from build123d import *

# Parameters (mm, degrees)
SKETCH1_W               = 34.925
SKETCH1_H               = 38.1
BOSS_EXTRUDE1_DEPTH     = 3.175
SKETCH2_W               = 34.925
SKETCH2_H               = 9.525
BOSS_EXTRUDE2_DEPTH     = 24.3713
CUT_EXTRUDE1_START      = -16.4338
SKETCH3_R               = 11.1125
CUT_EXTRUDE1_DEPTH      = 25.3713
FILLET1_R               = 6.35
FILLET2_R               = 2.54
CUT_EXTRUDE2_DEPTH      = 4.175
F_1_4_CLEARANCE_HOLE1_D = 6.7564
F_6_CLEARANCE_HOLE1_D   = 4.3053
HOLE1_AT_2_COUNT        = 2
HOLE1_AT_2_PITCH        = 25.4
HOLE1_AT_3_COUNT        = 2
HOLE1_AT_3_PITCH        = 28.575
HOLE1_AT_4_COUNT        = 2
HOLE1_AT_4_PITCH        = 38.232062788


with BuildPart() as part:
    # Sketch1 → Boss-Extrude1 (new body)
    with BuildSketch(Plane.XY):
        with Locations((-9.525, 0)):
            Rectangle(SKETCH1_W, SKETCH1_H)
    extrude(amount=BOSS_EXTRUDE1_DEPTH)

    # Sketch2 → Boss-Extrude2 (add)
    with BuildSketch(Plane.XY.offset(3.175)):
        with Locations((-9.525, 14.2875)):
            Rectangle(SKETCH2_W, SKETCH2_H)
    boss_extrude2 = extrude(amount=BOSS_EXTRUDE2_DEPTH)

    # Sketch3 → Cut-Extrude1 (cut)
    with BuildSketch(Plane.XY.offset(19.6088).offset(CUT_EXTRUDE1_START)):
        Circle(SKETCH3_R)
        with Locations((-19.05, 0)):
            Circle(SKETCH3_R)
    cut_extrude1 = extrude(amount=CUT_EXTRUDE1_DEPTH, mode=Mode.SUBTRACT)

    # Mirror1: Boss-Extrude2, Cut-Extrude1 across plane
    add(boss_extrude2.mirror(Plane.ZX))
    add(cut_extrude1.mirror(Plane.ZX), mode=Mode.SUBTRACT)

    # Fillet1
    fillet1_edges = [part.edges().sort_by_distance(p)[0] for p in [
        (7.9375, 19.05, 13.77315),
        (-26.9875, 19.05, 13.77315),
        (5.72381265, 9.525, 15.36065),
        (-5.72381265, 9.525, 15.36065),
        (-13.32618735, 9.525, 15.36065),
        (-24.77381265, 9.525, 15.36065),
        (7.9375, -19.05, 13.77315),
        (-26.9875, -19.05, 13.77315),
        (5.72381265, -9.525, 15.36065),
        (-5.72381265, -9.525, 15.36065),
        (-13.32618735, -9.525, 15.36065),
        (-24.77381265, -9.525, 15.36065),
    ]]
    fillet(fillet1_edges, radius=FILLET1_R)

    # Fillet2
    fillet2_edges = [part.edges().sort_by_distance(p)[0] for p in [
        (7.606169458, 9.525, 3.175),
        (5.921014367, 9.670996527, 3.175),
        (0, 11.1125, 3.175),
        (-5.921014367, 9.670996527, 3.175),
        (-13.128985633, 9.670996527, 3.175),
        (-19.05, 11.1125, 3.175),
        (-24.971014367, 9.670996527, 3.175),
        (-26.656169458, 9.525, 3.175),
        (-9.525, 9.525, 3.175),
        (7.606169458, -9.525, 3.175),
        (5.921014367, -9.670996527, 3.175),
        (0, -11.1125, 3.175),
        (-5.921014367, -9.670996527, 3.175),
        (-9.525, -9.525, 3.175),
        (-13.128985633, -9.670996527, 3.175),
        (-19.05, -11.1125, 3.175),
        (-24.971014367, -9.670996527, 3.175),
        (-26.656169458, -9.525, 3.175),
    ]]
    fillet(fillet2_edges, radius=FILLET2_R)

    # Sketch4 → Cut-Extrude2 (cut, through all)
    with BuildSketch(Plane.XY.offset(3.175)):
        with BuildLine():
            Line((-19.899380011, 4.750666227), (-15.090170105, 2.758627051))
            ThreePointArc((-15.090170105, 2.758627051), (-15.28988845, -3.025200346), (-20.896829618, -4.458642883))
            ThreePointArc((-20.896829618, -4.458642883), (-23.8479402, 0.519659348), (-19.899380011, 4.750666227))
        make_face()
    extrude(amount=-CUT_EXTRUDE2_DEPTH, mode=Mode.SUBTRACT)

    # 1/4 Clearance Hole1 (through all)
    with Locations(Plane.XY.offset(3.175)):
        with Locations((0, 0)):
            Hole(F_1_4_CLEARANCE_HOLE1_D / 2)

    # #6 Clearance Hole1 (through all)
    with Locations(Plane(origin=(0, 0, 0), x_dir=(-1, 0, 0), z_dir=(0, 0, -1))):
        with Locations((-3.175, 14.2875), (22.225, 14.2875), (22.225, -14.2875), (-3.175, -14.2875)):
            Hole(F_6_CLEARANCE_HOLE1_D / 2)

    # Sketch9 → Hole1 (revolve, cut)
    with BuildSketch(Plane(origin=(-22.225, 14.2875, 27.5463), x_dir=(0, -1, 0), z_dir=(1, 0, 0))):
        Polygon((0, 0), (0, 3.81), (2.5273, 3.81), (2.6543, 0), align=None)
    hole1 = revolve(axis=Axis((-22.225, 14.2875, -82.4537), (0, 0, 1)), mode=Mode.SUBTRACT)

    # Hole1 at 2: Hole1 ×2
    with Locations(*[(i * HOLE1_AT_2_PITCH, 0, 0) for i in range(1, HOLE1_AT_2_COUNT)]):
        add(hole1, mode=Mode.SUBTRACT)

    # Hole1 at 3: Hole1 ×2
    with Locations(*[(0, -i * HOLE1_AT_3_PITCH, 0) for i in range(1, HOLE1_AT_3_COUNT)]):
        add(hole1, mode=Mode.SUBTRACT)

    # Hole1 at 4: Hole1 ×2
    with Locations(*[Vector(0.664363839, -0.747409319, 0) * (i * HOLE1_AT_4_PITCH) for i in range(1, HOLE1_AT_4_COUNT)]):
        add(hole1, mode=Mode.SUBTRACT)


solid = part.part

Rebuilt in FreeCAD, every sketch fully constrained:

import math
import FreeCAD as App
import Part
import Sketcher
Q = App.Units.Quantity


def edges_at(feature, points):
    """Names of the edges that pass closest to the given points."""
    edges = feature.Shape.Edges
    near = lambda p: min(range(len(edges)), key=lambda i: edges[i].distToShape(Part.Vertex(*p))[0])
    return sorted({f"Edge{near(p) + 1}" for p in points})

doc = App.newDocument("Part")
body = doc.addObject("PartDesign::Body", "Body")

# Sketch on XY plane
sketch1 = body.newObject("Sketcher::SketchObject", "Sketch")
sketch1.AttachmentSupport = (doc.getObject("XY_Plane"), [""])
sketch1.MapMode = "FlatFace"
sketch1.addGeometry([
    Part.LineSegment(App.Vector(-27, 19, 0), App.Vector(-27, -19, 0)),
    Part.LineSegment(App.Vector(-27, -19, 0), App.Vector(8, -19, 0)),
    Part.LineSegment(App.Vector(8, -19, 0), App.Vector(8, 19, 0)),
    Part.LineSegment(App.Vector(8, 19, 0), App.Vector(-27, 19, 0)),
], False)
sketch1.addConstraint([
    Sketcher.Constraint("Coincident", 0, 2, 1, 1),
    Sketcher.Constraint("Coincident", 1, 2, 2, 1),
    Sketcher.Constraint("Coincident", 2, 2, 3, 1),
    Sketcher.Constraint("Coincident", 3, 2, 0, 1),
    Sketcher.Constraint("Vertical", 0),
    Sketcher.Constraint("Horizontal", 1),
    Sketcher.Constraint("Vertical", 2),
    Sketcher.Constraint("Horizontal", 3),
    Sketcher.Constraint("DistanceY", 0, 2, 0, 1, Q("1.5 in")),
    Sketcher.Constraint("DistanceX", 1, 1, 1, 2, Q("1.375 in")),
    Sketcher.Constraint("DistanceY", 0, 2, -1, 1, Q("0.75 in")),
    Sketcher.Constraint("DistanceX", 0, 2, -1, 1, Q("1.0625 in")),
])
pad1 = body.newObject("PartDesign::Pad", "Pad")
pad1.Profile = sketch1
pad1.Length = Q("0.125 in")

# Sketch on XY plane
sketch2 = body.newObject("Sketcher::SketchObject", "Sketch001")
sketch2.AttachmentSupport = (doc.getObject("XY_Plane"), [""])
sketch2.MapMode = "FlatFace"
sketch2.AttachmentOffset = App.Placement(App.Vector(0, 0, 0.125 * 25.4), App.Rotation())
sketch2.addGeometry([
    Part.LineSegment(App.Vector(-27, 19, 0), App.Vector(-27, 10, 0)),
    Part.LineSegment(App.Vector(-27, 10, 0), App.Vector(8, 10, 0)),
    Part.LineSegment(App.Vector(8, 10, 0), App.Vector(8, 19, 0)),
    Part.LineSegment(App.Vector(8, 19, 0), App.Vector(-27, 19, 0)),
], False)
sketch2.addConstraint([
    Sketcher.Constraint("Coincident", 0, 2, 1, 1),
    Sketcher.Constraint("Coincident", 1, 2, 2, 1),
    Sketcher.Constraint("Coincident", 2, 2, 3, 1),
    Sketcher.Constraint("Coincident", 3, 2, 0, 1),
    Sketcher.Constraint("Vertical", 0),
    Sketcher.Constraint("Horizontal", 1),
    Sketcher.Constraint("Vertical", 2),
    Sketcher.Constraint("Horizontal", 3),
    Sketcher.Constraint("DistanceX", 1, 1, 1, 2, Q("1.375 in")),
    Sketcher.Constraint("DistanceY", 0, 2, 0, 1, Q("0.375 in")),
    Sketcher.Constraint("DistanceY", -1, 1, 2, 2, Q("0.75 in")),
    Sketcher.Constraint("DistanceX", 0, 2, -1, 1, Q("1.0625 in")),
])
pad2 = body.newObject("PartDesign::Pad", "Pad001")
pad2.Profile = sketch2
pad2.Length = Q("0.9595 in")

# Sketch on XY plane
sketch3 = body.newObject("Sketcher::SketchObject", "Sketch002")
sketch3.AttachmentSupport = (doc.getObject("XY_Plane"), [""])
sketch3.MapMode = "FlatFace"
sketch3.AttachmentOffset = App.Placement(App.Vector(0, 0, 0.125 * 25.4), App.Rotation())
sketch3.addGeometry([
    Part.ArcOfCircle(Part.Circle(App.Vector(-19, 0, 0), App.Vector(0, 0, 1), 11), math.radians(31), math.radians(329)),
    Part.ArcOfCircle(Part.Circle(App.Vector(0, 0, 0), App.Vector(0, 0, 1), 11), math.radians(-149), math.radians(149)),
], False)
sketch3.addConstraint([
    Sketcher.Constraint("Coincident", 0, 1, 1, 2),
    Sketcher.Constraint("Coincident", 1, 1, 0, 2),
    Sketcher.Constraint("Coincident", 1, 3, -1, 1),
    Sketcher.Constraint("Equal", 0, 1),
    Sketcher.Constraint("PointOnObject", 0, 3, -1),
    Sketcher.Constraint("Radius", 0, Q("0.4375 in")),
    Sketcher.Constraint("DistanceX", 0, 3, -1, 1, Q("0.75 in")),
])
pocket1 = body.newObject("PartDesign::Pocket", "Pocket")
pocket1.Profile = sketch3
pocket1.Length = 25.3713
pocket1.Reversed = True
doc.recompute()

mirrored = body.newObject("PartDesign::Mirrored", "Mirrored")
mirrored.Originals = [pad2, pocket1]
mirrored.MirrorPlane = (doc.getObject("XZ_Plane"), [""])
body.Tip = mirrored
doc.recompute()

fillet = body.newObject("PartDesign::Fillet", "Fillet")
fillet.Base = (mirrored, edges_at(mirrored, [
    (7.938, 19.05, 13.773),
    (-26.988, 19.05, 13.773),
    (5.724, 9.525, 15.361),
    (-5.724, 9.525, 15.361),
    (-13.326, 9.525, 15.361),
    (-24.774, 9.525, 15.361),
    (7.938, -19.05, 13.773),
    (-26.988, -19.05, 13.773),
    (5.724, -9.525, 15.361),
    (-5.724, -9.525, 15.361),
    (-13.326, -9.525, 15.361),
    (-24.774, -9.525, 15.361),
]))
fillet.Radius = Q("0.25 in")
doc.recompute()

fillet2 = body.newObject("PartDesign::Fillet", "Fillet001")
fillet2.Base = (fillet, edges_at(fillet, [
    (7.606, 9.525, 3.175),
    (5.921, 9.671, 3.175),
    (0, 11.113, 3.175),
    (-5.921, 9.671, 3.175),
    (-13.129, 9.671, 3.175),
    (-19.05, 11.113, 3.175),
    (-24.971, 9.671, 3.175),
    (-26.656, 9.525, 3.175),
    (-9.525, 9.525, 3.175),
    (7.606, -9.525, 3.175),
    (5.921, -9.671, 3.175),
    (0, -11.113, 3.175),
    (-5.921, -9.671, 3.175),
    (-9.525, -9.525, 3.175),
    (-13.129, -9.671, 3.175),
    (-19.05, -11.113, 3.175),
    (-24.971, -9.671, 3.175),
    (-26.656, -9.525, 3.175),
]))
fillet2.Radius = Q("0.1 in")

# Sketch on XY plane
sketch4 = body.newObject("Sketcher::SketchObject", "Sketch003")
sketch4.AttachmentSupport = (doc.getObject("XY_Plane"), [""])
sketch4.MapMode = "FlatFace"
sketch4.AttachmentOffset = App.Placement(App.Vector(0, 0, 0.125 * 25.4), App.Rotation())
sketch4.addGeometry([
    Part.LineSegment(App.Vector(-15.1, 2.8, 0), App.Vector(-19.9, 4.8, 0)),
    Part.ArcOfCircle(Part.Circle(App.Vector(-19.1, 0, 0), App.Vector(0, 0, 1), 4.8), math.radians(100), math.radians(248)),
    Part.ArcOfCircle(Part.Circle(App.Vector(-19.1, 0, 0), App.Vector(0, 0, 1), 4.8), math.radians(-112), math.radians(35)),
], False)
sketch4.addConstraint([
    Sketcher.Constraint("Coincident", 0, 2, 1, 1),
    Sketcher.Constraint("Tangent", 1, 2, 2, 1),
    Sketcher.Constraint("Coincident", 2, 2, 0, 1),
    Sketcher.Constraint("Equal", 1, 2),
    Sketcher.Constraint("PointOnObject", 1, 3, -1),
    Sketcher.Constraint("Radius", 1, Q("0.19 in")),
    Sketcher.Constraint("Angle", 0, Q("157.500008 deg")),
    Sketcher.Constraint("DistanceX", 1, 3, -1, 1, Q("0.75 in")),
    Sketcher.Constraint("Distance", 0, Q("5.205451 mm")),
    Sketcher.Constraint("DistanceX", 1, 2, -1, 1, Q("20.89683 mm")),
])
pocket2 = body.newObject("PartDesign::Pocket", "Pocket001")
pocket2.Profile = sketch4
pocket2.Type = "ThroughAll"

# Sketch on XY plane
sketch5 = body.newObject("Sketcher::SketchObject", "Sketch004")
sketch5.AttachmentSupport = (doc.getObject("XY_Plane"), [""])
sketch5.MapMode = "FlatFace"
sketch5.AttachmentOffset = App.Placement(App.Vector(0, 0, 0.125 * 25.4), App.Rotation())
sketch5.addGeometry(Part.Circle(App.Vector(0, 0, 0), App.Vector(0, 0, 1), 3.4), False)
sketch5.addConstraint([
    Sketcher.Constraint("Coincident", 0, 3, -1, 1),
    Sketcher.Constraint("Diameter", 0, Q("0.266 in")),
])
doc.recompute()
hole = body.newObject("PartDesign::Hole", "Hole")
hole.Profile = sketch5
hole.ThreadType = "None"
hole.Diameter = Q("0.266 in")
hole.DepthType = "ThroughAll"

# Sketch on XY plane
sketch6 = body.newObject("Sketcher::SketchObject", "Sketch005")
sketch6.AttachmentSupport = (doc.getObject("XY_Plane"), [""])
sketch6.MapMode = "FlatFace"
sketch6.addGeometry([
    Part.Circle(App.Vector(3.2, 14.3, 0), App.Vector(0, 0, 1), 2.2),
    Part.Circle(App.Vector(-22.2, 14.3, 0), App.Vector(0, 0, 1), 2.2),
    Part.Circle(App.Vector(-22.2, -14.3, 0), App.Vector(0, 0, 1), 2.2),
    Part.Circle(App.Vector(3.2, -14.3, 0), App.Vector(0, 0, 1), 2.2),
], False)
sketch6.addConstraint([
    Sketcher.Constraint("Equal", 0, 1),
    Sketcher.Constraint("Equal", 1, 2),
    Sketcher.Constraint("Equal", 2, 3),
    Sketcher.Constraint("Symmetric", 1, 3, 2, 3, -1),
    Sketcher.Constraint("Symmetric", 0, 3, 3, 3, -1),
    Sketcher.Constraint("Horizontal", 0, 3, 1, 3),
    Sketcher.Constraint("DistanceX", 1, 3, 0, 3, Q("1 in")),
    Sketcher.Constraint("Diameter", 0, Q("0.1695 in")),
    Sketcher.Constraint("DistanceX", -1, 1, 0, 3, Q("0.125 in")),
    Sketcher.Constraint("DistanceY", -1, 1, 0, 3, Q("0.5625 in")),
])
doc.recompute()
hole2 = body.newObject("PartDesign::Hole", "Hole001")
hole2.Profile = sketch6
hole2.ThreadType = "None"
hole2.Diameter = Q("0.1695 in")
hole2.DepthType = "ThroughAll"
hole2.Reversed = True

# Sketch on YZ plane
sketch7 = body.newObject("Sketcher::SketchObject", "Sketch006")
sketch7.AttachmentSupport = (doc.getObject("YZ_Plane"), [""])
sketch7.MapMode = "FlatFace"
sketch7.AttachmentOffset = App.Placement(App.Vector(0, 0, -0.875 * 25.4), App.Rotation())
sketch7.addGeometry([
    Part.LineSegment(App.Vector(14.3, 23.7, 0), App.Vector(14.3, 27.5, 0)),
    Part.LineSegment(App.Vector(14.3, 27.5, 0), App.Vector(11.6, 27.5, 0)),
    Part.LineSegment(App.Vector(11.6, 27.5, 0), App.Vector(11.8, 23.7, 0)),
    Part.LineSegment(App.Vector(11.8, 23.7, 0), App.Vector(14.3, 23.7, 0)),
], False)
sketch7.addGeometry(Part.LineSegment(App.Vector(14.3, 23.7, 0), App.Vector(14.3, 27.5, 0)), True)  # axis
sketch7.addConstraint([
    Sketcher.Constraint("Coincident", 0, 2, 1, 1),
    Sketcher.Constraint("Coincident", 1, 2, 2, 1),
    Sketcher.Constraint("Coincident", 2, 2, 3, 1),
    Sketcher.Constraint("Coincident", 3, 2, 0, 1),
    Sketcher.Constraint("Vertical", 0),
    Sketcher.Constraint("Horizontal", 1),
    Sketcher.Constraint("Horizontal", 3),
    Sketcher.Constraint("Vertical", 4),
    Sketcher.Constraint("Coincident", 4, 1, 3, 2),
    Sketcher.Constraint("Horizontal", 1, 2, 4, 2),
    Sketcher.Constraint("DistanceY", 0, 1, 0, 2, Q("0.15 in")),
    Sketcher.Constraint("DistanceX", 1, 2, 1, 1, Q("0.1045 in")),
    Sketcher.Constraint("DistanceX", 3, 1, 3, 2, Q("0.0995 in")),
    Sketcher.Constraint("DistanceX", -1, 1, 0, 2, Q("0.5625 in")),
    Sketcher.Constraint("DistanceY", -1, 1, 0, 2, Q("1.0845 in")),
])
groove = body.newObject("PartDesign::Groove", "Groove")
groove.Profile = sketch7
groove.ReferenceAxis = (sketch7, ["Axis0"])
groove.Angle = 360
doc.recompute()

linearpattern = body.newObject("PartDesign::LinearPattern", "LinearPattern")
linearpattern.Originals = [groove]
linearpattern.Direction = (doc.getObject("X_Axis"), [""])
linearpattern.Mode = "offset"
linearpattern.Offset = Q("1 in")
linearpattern.Occurrences = 2
body.Tip = linearpattern
doc.recompute()

linearpattern2 = body.newObject("PartDesign::LinearPattern", "LinearPattern001")
linearpattern2.Originals = [groove]
linearpattern2.Direction = (doc.getObject("Y_Axis"), [""])
linearpattern2.Mode = "offset"
linearpattern2.Offset = Q("1.125 in")
linearpattern2.Occurrences = 2
linearpattern2.Reversed = True
body.Tip = linearpattern2
doc.recompute()

datumline = body.newObject("PartDesign::Line", "DatumLine")
datumline.Placement = App.Placement(App.Vector(0, 0, 0), App.Rotation(App.Vector(0, 0, 1), App.Vector(0.664363839, -0.747409319, 0)))
linearpattern3 = body.newObject("PartDesign::LinearPattern", "LinearPattern002")
linearpattern3.Originals = [groove]
linearpattern3.Direction = (datumline, [""])
linearpattern3.Mode = "offset"
linearpattern3.Offset = 38.232063
linearpattern3.Occurrences = 2
body.Tip = linearpattern3

doc.recompute()
